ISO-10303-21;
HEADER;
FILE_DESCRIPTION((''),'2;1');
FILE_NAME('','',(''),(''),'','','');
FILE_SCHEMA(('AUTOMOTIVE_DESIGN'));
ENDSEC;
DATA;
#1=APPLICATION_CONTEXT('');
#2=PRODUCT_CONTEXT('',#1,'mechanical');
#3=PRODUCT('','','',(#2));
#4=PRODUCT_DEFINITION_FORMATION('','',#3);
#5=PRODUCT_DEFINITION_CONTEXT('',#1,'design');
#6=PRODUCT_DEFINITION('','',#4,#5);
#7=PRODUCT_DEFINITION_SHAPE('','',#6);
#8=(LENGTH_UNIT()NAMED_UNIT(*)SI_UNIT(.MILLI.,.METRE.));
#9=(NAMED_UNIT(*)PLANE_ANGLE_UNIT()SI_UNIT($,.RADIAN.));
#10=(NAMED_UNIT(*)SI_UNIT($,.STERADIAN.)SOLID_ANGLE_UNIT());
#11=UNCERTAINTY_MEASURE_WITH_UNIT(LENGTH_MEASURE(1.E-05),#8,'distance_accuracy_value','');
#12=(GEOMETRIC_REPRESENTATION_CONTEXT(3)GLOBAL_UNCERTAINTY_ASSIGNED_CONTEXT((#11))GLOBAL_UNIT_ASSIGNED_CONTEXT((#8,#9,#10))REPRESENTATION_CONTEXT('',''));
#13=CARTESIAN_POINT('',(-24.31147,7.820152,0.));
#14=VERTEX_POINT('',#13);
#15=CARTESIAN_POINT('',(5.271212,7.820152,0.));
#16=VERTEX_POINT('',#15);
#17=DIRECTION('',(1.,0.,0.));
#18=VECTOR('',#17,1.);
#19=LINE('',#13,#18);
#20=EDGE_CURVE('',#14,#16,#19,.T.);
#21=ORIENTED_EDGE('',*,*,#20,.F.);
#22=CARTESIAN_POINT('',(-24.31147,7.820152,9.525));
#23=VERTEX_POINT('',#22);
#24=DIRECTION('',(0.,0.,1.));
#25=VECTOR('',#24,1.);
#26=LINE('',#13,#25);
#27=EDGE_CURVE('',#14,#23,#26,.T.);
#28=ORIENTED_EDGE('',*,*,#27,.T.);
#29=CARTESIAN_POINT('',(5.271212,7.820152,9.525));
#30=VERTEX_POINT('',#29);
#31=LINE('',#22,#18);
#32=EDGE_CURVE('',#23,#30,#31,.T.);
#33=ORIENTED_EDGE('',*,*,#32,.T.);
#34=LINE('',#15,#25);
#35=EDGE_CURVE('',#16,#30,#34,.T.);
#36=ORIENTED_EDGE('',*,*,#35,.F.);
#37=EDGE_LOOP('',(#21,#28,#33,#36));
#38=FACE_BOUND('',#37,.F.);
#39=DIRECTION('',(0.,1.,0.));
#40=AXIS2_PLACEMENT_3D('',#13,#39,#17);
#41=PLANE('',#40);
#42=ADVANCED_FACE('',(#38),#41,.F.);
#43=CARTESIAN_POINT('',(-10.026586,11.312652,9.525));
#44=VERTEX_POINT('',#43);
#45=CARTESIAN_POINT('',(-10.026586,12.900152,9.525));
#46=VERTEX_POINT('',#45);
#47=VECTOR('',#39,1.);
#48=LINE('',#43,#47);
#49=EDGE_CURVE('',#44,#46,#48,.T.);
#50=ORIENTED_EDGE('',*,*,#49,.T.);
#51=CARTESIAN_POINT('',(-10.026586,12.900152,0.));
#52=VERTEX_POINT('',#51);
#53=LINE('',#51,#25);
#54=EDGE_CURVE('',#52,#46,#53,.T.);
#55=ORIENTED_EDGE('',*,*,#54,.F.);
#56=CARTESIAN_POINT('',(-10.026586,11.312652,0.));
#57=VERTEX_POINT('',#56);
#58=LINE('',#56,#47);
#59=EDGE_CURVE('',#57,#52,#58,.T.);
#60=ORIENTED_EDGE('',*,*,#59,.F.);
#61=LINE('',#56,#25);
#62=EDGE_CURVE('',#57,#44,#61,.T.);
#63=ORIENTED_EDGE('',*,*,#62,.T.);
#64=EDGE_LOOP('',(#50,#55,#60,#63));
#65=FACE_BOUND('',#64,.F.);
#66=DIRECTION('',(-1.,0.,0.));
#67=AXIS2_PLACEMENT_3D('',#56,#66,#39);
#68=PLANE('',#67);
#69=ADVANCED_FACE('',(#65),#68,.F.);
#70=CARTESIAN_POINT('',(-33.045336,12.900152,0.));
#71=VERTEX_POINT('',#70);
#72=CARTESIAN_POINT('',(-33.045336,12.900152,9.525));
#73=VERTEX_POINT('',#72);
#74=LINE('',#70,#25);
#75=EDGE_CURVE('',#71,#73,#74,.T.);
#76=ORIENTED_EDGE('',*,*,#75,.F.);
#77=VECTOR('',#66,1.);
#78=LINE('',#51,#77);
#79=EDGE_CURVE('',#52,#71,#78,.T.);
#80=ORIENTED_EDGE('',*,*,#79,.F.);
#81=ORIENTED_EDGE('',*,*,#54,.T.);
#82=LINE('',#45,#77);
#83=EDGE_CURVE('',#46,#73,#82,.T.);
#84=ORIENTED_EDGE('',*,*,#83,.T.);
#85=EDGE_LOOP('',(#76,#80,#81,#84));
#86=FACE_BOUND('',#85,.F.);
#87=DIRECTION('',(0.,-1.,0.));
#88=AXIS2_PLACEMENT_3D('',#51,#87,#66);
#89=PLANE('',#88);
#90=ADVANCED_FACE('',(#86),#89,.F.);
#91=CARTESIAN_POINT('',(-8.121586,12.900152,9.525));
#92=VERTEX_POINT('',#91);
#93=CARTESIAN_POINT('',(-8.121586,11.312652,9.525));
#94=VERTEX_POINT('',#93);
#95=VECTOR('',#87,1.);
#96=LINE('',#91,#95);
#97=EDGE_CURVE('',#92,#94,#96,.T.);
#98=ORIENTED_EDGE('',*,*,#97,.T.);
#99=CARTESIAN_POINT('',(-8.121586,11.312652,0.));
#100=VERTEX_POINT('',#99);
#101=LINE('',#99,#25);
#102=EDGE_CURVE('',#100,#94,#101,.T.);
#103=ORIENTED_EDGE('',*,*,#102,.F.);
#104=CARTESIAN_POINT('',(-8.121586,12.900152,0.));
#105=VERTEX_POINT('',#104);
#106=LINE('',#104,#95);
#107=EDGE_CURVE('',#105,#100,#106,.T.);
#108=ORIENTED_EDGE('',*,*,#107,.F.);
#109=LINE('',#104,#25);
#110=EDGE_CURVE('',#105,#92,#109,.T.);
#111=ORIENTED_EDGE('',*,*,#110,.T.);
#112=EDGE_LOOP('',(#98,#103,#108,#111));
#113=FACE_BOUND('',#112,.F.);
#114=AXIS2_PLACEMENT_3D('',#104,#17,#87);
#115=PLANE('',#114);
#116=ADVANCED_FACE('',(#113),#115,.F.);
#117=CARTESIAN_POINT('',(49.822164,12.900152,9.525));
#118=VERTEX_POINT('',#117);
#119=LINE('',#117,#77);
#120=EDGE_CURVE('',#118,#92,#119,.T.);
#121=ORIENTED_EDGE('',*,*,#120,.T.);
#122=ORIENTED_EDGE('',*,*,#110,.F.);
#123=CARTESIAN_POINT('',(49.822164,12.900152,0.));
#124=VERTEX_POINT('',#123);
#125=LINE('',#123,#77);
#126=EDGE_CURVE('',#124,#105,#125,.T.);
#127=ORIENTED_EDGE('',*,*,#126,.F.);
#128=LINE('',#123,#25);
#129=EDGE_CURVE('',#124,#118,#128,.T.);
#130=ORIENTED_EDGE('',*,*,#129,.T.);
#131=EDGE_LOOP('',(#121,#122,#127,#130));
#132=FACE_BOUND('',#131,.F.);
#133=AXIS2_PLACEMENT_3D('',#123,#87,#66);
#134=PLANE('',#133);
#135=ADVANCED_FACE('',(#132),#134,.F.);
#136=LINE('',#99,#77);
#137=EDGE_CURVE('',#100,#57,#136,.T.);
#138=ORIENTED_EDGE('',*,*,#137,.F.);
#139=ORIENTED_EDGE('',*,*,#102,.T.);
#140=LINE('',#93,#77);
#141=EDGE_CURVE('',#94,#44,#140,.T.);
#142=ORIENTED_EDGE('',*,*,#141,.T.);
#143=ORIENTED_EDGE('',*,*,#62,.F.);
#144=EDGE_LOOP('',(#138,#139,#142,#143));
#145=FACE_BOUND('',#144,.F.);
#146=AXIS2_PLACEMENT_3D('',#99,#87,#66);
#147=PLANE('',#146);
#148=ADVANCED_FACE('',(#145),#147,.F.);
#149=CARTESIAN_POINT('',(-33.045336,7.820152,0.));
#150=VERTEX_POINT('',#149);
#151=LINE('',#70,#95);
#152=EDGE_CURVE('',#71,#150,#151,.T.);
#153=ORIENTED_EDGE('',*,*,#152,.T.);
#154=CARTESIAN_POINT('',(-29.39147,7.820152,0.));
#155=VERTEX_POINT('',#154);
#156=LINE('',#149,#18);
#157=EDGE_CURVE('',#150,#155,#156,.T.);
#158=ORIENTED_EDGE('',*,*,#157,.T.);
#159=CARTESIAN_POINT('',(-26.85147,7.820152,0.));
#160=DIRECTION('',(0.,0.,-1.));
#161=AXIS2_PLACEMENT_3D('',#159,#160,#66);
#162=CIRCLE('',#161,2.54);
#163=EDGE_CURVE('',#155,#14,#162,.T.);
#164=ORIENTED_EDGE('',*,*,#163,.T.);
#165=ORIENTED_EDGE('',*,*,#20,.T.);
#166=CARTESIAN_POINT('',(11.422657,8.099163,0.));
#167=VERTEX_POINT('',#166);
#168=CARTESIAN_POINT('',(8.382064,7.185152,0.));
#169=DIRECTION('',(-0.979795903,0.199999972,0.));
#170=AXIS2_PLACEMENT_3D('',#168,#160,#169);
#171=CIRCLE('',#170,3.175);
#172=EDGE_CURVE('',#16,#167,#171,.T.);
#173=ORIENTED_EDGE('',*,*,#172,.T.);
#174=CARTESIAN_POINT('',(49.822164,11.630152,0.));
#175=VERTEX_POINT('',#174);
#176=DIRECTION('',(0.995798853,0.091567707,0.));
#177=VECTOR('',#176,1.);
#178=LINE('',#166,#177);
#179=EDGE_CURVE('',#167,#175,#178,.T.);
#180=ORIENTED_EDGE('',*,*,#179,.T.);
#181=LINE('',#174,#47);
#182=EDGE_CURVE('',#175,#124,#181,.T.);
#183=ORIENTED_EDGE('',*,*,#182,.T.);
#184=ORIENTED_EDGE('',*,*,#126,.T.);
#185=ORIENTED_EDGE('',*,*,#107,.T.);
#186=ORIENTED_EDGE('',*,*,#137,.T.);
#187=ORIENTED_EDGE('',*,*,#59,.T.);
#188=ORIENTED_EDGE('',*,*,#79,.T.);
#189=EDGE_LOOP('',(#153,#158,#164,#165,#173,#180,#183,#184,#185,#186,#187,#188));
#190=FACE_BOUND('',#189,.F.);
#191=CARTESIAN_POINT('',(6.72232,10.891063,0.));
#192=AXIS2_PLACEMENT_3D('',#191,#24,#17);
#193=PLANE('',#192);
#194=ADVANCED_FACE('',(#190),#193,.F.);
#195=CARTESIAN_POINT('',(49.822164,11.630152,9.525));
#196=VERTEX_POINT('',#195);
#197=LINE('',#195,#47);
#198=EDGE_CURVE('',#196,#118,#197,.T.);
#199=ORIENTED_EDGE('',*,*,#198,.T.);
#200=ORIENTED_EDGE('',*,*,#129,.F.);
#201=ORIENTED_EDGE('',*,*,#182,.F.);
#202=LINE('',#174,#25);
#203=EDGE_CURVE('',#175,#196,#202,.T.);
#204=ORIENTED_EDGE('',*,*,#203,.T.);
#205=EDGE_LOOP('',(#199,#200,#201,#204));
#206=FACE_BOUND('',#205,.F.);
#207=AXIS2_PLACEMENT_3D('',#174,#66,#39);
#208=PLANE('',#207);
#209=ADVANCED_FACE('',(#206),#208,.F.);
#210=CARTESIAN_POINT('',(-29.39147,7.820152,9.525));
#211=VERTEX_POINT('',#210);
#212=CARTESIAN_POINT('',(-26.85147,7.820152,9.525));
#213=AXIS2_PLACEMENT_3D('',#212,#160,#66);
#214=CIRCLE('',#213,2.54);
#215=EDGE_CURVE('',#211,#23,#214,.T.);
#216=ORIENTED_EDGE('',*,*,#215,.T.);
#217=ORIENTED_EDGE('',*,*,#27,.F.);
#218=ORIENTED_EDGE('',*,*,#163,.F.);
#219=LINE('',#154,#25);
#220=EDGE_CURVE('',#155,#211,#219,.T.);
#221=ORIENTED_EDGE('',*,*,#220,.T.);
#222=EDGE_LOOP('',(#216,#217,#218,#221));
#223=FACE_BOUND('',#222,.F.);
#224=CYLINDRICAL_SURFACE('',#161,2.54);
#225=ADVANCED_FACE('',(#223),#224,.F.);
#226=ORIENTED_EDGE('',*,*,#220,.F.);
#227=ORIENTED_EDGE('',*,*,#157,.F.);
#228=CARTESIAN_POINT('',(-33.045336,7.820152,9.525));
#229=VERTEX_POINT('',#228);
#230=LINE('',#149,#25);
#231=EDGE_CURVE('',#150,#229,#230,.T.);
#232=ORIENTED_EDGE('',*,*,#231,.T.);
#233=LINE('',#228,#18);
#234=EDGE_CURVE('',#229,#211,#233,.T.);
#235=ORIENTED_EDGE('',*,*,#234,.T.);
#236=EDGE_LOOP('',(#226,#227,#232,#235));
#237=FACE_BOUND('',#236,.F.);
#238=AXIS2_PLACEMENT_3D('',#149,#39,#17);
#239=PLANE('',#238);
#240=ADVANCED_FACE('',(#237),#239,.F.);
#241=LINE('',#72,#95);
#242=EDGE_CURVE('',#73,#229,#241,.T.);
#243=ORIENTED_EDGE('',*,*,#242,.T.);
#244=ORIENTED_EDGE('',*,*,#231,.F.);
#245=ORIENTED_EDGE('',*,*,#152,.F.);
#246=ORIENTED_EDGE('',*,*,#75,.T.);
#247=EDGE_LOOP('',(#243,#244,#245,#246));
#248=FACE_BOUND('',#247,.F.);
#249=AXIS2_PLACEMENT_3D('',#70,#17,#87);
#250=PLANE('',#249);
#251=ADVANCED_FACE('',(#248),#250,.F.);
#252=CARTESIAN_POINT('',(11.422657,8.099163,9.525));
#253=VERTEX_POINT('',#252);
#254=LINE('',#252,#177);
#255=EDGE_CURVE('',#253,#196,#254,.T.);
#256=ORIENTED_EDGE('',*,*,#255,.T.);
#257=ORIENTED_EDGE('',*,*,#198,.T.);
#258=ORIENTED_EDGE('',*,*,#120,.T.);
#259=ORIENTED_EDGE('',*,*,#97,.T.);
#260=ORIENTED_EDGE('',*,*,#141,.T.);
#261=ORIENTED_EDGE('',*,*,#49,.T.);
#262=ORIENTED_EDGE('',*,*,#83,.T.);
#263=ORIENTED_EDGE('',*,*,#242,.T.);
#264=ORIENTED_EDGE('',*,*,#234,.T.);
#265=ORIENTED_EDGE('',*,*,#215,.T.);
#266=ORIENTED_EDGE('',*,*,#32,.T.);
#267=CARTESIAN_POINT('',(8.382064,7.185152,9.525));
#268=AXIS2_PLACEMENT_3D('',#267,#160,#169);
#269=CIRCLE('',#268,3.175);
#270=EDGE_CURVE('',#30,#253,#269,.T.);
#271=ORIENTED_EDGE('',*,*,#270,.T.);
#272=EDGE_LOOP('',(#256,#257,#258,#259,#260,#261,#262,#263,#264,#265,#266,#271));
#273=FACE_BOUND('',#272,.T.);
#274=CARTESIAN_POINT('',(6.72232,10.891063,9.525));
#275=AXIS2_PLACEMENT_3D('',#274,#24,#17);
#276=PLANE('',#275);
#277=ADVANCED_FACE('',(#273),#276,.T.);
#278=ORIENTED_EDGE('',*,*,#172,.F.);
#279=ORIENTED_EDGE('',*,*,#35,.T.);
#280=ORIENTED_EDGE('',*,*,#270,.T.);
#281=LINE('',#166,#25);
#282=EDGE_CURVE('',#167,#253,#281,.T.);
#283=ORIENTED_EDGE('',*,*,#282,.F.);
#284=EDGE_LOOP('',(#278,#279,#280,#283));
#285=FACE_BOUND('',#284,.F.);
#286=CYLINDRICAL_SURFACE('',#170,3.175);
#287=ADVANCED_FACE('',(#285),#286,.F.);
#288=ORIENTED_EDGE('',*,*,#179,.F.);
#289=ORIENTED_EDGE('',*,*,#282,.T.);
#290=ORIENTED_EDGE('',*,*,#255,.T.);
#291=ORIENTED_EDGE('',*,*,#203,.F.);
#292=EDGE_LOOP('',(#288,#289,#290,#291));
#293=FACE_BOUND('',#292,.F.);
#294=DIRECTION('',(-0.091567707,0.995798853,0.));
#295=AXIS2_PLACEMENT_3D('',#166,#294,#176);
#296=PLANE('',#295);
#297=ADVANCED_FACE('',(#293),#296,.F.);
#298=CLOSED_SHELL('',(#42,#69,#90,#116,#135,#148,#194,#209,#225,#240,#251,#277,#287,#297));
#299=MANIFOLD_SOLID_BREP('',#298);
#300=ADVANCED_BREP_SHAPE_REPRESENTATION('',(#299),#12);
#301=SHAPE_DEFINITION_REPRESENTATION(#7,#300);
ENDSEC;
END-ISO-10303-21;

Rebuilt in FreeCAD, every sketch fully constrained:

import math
import FreeCAD as App
import Part
import Sketcher
from FreeCAD import Vector
Q = App.Units.Quantity

doc = App.newDocument("Part")
body = doc.addObject("PartDesign::Body", "Body")

# Sketch on XY plane
sketch1 = body.newObject("Sketcher::SketchObject", "Sketch")
sketch1.AttachmentSupport = (doc.getObject("XY_Plane"), [""])
sketch1.MapMode = "FlatFace"
sketch1.addGeometry([
    Part.LineSegment(Vector(-10, 12.9, 0), Vector(-33, 12.9, 0)),  # 0
    Part.LineSegment(Vector(-33, 12.9, 0), Vector(-33, 7.8, 0)),  # 1
    Part.LineSegment(Vector(-33, 7.8, 0), Vector(-29.4, 7.8, 0)),  # 2
    Part.ArcOfCircle(Part.Circle(Vector(-26.9, 7.8, 0), Vector(0, 0, 1), 2.5), math.radians(0), math.radians(180)),  # 3
    Part.LineSegment(Vector(-24.3, 7.8, 0), Vector(5.3, 7.8, 0)),  # 4
    Part.ArcOfCircle(Part.Circle(Vector(8.4, 7.2, 0), Vector(0, 0, 1), 3.2), math.radians(17), math.radians(168)),  # 5
    Part.LineSegment(Vector(11.4, 8.1, 0), Vector(49.8, 11.6, 0)),  # 6
    Part.LineSegment(Vector(49.8, 11.6, 0), Vector(49.8, 12.9, 0)),  # 7
    Part.LineSegment(Vector(49.8, 12.9, 0), Vector(-8.1, 12.9, 0)),  # 8
    Part.LineSegment(Vector(-8.1, 12.9, 0), Vector(-8.1, 11.3, 0)),  # 9
    Part.LineSegment(Vector(-8.1, 11.3, 0), Vector(-10, 11.3, 0)),  # 10
    Part.LineSegment(Vector(-10, 11.3, 0), Vector(-10, 12.9, 0)),  # 11
], False)
sketch1.addConstraint([
    Sketcher.Constraint("Coincident", 0, 2, 1, 1),
    Sketcher.Constraint("Coincident", 1, 2, 2, 1),
    Sketcher.Constraint("Coincident", 2, 2, 3, 2),
    Sketcher.Constraint("Coincident", 3, 1, 4, 1),
    Sketcher.Constraint("Coincident", 4, 2, 5, 2),
    Sketcher.Constraint("Coincident", 5, 1, 6, 1),
    Sketcher.Constraint("Coincident", 6, 2, 7, 1),
    Sketcher.Constraint("Coincident", 7, 2, 8, 1),
    Sketcher.Constraint("Coincident", 8, 2, 9, 1),
    Sketcher.Constraint("Coincident", 9, 2, 10, 1),
    Sketcher.Constraint("Coincident", 10, 2, 11, 1),
    Sketcher.Constraint("Coincident", 11, 2, 0, 1),
    Sketcher.Constraint("Horizontal", 0),
    Sketcher.Constraint("Vertical", 1),
    Sketcher.Constraint("Horizontal", 2),
    Sketcher.Constraint("Horizontal", 4),
    Sketcher.Constraint("Vertical", 7),
    Sketcher.Constraint("Horizontal", 8),
    Sketcher.Constraint("Vertical", 9),
    Sketcher.Constraint("Horizontal", 10),
    Sketcher.Constraint("Vertical", 11),
    Sketcher.Constraint("Horizontal", 3, 3, 1, 2),
    Sketcher.Constraint("Horizontal", 2, 2, 3, 1),
    Sketcher.Constraint("Horizontal", 0, 2, 7, 2),
    Sketcher.Constraint("Radius", 3, Q("0.1 in")),
    Sketcher.Constraint("DistanceY", 1, 2, 1, 1, Q("0.2 in")),
    Sketcher.Constraint("Radius", 5, Q("0.125 in")),
    Sketcher.Constraint("DistanceY", 7, 1, 7, 2, Q("0.05 in")),
    Sketcher.Constraint("DistanceX", 0, 2, 0, 1, Q("0.90625 in")),
    Sketcher.Constraint("DistanceX", 8, 2, 8, 1, Q("2.28125 in")),
    Sketcher.Constraint("DistanceX", 10, 2, 10, 1, Q("0.075 in")),
    Sketcher.Constraint("DistanceY", 9, 2, 9, 1, Q("0.0625 in")),
    Sketcher.Constraint("DistanceY", 5, 3, 3, 3, Q("0.025 in")),
    Sketcher.Constraint("DistanceX", 0, 2, 5, 3, Q("1.631 in")),
    Sketcher.Constraint("DistanceX", 4, 1, 4, 2, Q("29.582682 mm")),
    Sketcher.Constraint("Distance", 6, Q("38.56151 mm")),
    Sketcher.Constraint("DistanceX", 3, 3, -1, 1, Q("26.85147 mm")),
    Sketcher.Constraint("DistanceY", -1, 1, 3, 3, Q("7.820152 mm")),
])
pad1 = body.newObject("PartDesign::Pad", "Pad")
pad1.Profile = sketch1
pad1.Length = Q("0.375 in")

doc.recompute()
